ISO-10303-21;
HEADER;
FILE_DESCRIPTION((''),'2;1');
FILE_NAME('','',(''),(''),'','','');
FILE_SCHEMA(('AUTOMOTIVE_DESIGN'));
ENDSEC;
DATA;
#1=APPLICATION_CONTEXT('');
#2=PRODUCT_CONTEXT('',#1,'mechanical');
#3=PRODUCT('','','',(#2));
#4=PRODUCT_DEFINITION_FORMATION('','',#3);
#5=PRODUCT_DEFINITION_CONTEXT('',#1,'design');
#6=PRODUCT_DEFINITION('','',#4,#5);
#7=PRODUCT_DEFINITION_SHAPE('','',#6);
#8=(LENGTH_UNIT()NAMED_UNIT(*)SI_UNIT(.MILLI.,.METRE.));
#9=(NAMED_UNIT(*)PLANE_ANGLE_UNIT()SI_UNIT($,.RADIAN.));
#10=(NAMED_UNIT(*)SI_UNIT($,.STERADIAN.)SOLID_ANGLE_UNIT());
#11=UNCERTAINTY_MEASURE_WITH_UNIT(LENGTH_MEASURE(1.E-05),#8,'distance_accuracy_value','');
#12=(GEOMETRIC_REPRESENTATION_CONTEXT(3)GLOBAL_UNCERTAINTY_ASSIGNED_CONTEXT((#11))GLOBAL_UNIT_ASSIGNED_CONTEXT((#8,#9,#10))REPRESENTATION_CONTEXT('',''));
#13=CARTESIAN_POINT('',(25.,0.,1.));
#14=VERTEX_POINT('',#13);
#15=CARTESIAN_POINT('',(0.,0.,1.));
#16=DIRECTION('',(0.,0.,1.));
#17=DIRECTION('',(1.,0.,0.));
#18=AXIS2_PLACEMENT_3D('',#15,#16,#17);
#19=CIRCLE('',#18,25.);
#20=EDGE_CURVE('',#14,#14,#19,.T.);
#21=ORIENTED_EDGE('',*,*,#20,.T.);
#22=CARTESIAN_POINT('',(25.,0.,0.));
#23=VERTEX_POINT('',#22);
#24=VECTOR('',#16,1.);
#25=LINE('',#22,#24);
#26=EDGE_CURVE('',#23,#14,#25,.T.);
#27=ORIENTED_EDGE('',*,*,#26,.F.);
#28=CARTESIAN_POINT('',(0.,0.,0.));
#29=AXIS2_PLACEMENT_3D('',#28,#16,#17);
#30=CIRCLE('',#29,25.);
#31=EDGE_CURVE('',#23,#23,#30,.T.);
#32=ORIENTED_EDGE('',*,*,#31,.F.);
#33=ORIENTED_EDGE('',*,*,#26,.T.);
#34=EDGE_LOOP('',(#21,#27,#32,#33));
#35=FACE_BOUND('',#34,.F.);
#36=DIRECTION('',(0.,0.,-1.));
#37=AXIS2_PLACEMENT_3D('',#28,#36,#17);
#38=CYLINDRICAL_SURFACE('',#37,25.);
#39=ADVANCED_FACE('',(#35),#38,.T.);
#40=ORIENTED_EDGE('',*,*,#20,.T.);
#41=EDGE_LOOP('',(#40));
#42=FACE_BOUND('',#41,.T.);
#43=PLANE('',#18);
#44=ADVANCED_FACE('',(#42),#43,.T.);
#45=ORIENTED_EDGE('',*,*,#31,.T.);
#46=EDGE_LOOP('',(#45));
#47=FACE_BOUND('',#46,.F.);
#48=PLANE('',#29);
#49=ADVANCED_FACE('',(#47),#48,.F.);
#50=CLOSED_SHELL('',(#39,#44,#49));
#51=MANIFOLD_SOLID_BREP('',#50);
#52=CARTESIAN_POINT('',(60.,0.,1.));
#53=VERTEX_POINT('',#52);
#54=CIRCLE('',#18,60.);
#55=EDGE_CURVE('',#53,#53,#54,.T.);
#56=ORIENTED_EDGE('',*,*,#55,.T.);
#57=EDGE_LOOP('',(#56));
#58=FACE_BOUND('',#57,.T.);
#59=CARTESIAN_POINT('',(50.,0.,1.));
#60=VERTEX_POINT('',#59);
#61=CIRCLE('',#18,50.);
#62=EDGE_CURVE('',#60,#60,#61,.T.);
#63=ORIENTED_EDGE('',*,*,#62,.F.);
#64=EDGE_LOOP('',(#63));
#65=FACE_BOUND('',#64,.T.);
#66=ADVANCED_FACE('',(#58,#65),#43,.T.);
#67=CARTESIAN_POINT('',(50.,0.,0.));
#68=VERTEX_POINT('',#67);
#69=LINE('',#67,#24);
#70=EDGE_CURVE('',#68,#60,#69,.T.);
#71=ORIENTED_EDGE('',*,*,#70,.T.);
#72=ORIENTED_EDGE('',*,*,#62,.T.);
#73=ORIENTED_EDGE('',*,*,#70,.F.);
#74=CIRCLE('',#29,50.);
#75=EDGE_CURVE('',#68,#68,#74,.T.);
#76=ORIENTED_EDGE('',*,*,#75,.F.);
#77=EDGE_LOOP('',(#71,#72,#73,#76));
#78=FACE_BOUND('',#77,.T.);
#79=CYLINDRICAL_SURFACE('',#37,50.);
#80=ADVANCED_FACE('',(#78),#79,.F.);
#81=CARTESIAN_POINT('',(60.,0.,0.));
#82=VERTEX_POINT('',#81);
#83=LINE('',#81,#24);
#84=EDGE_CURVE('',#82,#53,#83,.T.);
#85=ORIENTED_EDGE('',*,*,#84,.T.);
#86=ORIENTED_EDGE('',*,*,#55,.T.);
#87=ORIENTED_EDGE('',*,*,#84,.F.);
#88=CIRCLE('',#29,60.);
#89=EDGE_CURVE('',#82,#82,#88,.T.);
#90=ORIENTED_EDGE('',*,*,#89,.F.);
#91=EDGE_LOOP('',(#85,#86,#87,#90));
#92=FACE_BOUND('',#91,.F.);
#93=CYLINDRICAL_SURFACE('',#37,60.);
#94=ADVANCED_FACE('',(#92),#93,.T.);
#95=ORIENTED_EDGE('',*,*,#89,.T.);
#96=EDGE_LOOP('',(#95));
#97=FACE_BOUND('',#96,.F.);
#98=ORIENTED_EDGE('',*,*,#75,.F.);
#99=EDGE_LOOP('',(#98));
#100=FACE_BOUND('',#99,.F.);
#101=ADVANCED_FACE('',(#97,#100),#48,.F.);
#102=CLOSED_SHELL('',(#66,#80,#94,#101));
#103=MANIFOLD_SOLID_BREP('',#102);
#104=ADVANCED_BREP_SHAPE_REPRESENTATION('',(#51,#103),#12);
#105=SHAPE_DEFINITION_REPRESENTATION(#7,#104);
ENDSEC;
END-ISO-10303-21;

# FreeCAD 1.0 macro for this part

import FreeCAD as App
import Part
import Sketcher

V = App.Vector
Q = App.Units.Quantity

doc = App.newDocument("Part")
body = doc.addObject("PartDesign::Body", "Body")

# Sketch on XY plane
sketch1 = doc.addObject("Sketcher::SketchObject", "Sketch")
body.addObject(sketch1)
sketch1.AttachmentSupport = (doc.XY_Plane, [""])
sketch1.MapMode = "FlatFace"
sketch1.addGeometry([
    Part.Circle(V(0, 0, 0), V(0, 0, 1), 60),
    Part.Circle(V(0, 0, 0), V(0, 0, 1), 50),
], False)
sketch1.addConstraint([
    Sketcher.Constraint("Coincident", 0, 3, -1, 1),
    Sketcher.Constraint("Coincident", 1, 3, -1, 1),
    Sketcher.Constraint("Diameter", 0, Q("120 mm")),
    Sketcher.Constraint("Diameter", 1, Q("100 mm")),
])
pad1 = doc.addObject("PartDesign::Pad", "Pad")
body.addObject(pad1)
pad1.Profile = sketch1
pad1.Length = 1
body2 = doc.addObject("PartDesign::Body", "Body001")

# Sketch on XY plane
sketch2 = doc.addObject("Sketcher::SketchObject", "Sketch001")
body2.addObject(sketch2)
sketch2.AttachmentSupport = (doc.getObject("XY_Plane001"), [""])
sketch2.MapMode = "FlatFace"
sketch2.addGeometry(Part.Circle(V(0, 0, 0), V(0, 0, 1), 25), False)
sketch2.addConstraint([
    Sketcher.Constraint("Coincident", 0, 3, -1, 1),
    Sketcher.Constraint("Diameter", 0, Q("50 mm")),
])
pad2 = doc.addObject("PartDesign::Pad", "Pad001")
body2.addObject(pad2)
pad2.Profile = sketch2
pad2.Length = 1

doc.recompute()
